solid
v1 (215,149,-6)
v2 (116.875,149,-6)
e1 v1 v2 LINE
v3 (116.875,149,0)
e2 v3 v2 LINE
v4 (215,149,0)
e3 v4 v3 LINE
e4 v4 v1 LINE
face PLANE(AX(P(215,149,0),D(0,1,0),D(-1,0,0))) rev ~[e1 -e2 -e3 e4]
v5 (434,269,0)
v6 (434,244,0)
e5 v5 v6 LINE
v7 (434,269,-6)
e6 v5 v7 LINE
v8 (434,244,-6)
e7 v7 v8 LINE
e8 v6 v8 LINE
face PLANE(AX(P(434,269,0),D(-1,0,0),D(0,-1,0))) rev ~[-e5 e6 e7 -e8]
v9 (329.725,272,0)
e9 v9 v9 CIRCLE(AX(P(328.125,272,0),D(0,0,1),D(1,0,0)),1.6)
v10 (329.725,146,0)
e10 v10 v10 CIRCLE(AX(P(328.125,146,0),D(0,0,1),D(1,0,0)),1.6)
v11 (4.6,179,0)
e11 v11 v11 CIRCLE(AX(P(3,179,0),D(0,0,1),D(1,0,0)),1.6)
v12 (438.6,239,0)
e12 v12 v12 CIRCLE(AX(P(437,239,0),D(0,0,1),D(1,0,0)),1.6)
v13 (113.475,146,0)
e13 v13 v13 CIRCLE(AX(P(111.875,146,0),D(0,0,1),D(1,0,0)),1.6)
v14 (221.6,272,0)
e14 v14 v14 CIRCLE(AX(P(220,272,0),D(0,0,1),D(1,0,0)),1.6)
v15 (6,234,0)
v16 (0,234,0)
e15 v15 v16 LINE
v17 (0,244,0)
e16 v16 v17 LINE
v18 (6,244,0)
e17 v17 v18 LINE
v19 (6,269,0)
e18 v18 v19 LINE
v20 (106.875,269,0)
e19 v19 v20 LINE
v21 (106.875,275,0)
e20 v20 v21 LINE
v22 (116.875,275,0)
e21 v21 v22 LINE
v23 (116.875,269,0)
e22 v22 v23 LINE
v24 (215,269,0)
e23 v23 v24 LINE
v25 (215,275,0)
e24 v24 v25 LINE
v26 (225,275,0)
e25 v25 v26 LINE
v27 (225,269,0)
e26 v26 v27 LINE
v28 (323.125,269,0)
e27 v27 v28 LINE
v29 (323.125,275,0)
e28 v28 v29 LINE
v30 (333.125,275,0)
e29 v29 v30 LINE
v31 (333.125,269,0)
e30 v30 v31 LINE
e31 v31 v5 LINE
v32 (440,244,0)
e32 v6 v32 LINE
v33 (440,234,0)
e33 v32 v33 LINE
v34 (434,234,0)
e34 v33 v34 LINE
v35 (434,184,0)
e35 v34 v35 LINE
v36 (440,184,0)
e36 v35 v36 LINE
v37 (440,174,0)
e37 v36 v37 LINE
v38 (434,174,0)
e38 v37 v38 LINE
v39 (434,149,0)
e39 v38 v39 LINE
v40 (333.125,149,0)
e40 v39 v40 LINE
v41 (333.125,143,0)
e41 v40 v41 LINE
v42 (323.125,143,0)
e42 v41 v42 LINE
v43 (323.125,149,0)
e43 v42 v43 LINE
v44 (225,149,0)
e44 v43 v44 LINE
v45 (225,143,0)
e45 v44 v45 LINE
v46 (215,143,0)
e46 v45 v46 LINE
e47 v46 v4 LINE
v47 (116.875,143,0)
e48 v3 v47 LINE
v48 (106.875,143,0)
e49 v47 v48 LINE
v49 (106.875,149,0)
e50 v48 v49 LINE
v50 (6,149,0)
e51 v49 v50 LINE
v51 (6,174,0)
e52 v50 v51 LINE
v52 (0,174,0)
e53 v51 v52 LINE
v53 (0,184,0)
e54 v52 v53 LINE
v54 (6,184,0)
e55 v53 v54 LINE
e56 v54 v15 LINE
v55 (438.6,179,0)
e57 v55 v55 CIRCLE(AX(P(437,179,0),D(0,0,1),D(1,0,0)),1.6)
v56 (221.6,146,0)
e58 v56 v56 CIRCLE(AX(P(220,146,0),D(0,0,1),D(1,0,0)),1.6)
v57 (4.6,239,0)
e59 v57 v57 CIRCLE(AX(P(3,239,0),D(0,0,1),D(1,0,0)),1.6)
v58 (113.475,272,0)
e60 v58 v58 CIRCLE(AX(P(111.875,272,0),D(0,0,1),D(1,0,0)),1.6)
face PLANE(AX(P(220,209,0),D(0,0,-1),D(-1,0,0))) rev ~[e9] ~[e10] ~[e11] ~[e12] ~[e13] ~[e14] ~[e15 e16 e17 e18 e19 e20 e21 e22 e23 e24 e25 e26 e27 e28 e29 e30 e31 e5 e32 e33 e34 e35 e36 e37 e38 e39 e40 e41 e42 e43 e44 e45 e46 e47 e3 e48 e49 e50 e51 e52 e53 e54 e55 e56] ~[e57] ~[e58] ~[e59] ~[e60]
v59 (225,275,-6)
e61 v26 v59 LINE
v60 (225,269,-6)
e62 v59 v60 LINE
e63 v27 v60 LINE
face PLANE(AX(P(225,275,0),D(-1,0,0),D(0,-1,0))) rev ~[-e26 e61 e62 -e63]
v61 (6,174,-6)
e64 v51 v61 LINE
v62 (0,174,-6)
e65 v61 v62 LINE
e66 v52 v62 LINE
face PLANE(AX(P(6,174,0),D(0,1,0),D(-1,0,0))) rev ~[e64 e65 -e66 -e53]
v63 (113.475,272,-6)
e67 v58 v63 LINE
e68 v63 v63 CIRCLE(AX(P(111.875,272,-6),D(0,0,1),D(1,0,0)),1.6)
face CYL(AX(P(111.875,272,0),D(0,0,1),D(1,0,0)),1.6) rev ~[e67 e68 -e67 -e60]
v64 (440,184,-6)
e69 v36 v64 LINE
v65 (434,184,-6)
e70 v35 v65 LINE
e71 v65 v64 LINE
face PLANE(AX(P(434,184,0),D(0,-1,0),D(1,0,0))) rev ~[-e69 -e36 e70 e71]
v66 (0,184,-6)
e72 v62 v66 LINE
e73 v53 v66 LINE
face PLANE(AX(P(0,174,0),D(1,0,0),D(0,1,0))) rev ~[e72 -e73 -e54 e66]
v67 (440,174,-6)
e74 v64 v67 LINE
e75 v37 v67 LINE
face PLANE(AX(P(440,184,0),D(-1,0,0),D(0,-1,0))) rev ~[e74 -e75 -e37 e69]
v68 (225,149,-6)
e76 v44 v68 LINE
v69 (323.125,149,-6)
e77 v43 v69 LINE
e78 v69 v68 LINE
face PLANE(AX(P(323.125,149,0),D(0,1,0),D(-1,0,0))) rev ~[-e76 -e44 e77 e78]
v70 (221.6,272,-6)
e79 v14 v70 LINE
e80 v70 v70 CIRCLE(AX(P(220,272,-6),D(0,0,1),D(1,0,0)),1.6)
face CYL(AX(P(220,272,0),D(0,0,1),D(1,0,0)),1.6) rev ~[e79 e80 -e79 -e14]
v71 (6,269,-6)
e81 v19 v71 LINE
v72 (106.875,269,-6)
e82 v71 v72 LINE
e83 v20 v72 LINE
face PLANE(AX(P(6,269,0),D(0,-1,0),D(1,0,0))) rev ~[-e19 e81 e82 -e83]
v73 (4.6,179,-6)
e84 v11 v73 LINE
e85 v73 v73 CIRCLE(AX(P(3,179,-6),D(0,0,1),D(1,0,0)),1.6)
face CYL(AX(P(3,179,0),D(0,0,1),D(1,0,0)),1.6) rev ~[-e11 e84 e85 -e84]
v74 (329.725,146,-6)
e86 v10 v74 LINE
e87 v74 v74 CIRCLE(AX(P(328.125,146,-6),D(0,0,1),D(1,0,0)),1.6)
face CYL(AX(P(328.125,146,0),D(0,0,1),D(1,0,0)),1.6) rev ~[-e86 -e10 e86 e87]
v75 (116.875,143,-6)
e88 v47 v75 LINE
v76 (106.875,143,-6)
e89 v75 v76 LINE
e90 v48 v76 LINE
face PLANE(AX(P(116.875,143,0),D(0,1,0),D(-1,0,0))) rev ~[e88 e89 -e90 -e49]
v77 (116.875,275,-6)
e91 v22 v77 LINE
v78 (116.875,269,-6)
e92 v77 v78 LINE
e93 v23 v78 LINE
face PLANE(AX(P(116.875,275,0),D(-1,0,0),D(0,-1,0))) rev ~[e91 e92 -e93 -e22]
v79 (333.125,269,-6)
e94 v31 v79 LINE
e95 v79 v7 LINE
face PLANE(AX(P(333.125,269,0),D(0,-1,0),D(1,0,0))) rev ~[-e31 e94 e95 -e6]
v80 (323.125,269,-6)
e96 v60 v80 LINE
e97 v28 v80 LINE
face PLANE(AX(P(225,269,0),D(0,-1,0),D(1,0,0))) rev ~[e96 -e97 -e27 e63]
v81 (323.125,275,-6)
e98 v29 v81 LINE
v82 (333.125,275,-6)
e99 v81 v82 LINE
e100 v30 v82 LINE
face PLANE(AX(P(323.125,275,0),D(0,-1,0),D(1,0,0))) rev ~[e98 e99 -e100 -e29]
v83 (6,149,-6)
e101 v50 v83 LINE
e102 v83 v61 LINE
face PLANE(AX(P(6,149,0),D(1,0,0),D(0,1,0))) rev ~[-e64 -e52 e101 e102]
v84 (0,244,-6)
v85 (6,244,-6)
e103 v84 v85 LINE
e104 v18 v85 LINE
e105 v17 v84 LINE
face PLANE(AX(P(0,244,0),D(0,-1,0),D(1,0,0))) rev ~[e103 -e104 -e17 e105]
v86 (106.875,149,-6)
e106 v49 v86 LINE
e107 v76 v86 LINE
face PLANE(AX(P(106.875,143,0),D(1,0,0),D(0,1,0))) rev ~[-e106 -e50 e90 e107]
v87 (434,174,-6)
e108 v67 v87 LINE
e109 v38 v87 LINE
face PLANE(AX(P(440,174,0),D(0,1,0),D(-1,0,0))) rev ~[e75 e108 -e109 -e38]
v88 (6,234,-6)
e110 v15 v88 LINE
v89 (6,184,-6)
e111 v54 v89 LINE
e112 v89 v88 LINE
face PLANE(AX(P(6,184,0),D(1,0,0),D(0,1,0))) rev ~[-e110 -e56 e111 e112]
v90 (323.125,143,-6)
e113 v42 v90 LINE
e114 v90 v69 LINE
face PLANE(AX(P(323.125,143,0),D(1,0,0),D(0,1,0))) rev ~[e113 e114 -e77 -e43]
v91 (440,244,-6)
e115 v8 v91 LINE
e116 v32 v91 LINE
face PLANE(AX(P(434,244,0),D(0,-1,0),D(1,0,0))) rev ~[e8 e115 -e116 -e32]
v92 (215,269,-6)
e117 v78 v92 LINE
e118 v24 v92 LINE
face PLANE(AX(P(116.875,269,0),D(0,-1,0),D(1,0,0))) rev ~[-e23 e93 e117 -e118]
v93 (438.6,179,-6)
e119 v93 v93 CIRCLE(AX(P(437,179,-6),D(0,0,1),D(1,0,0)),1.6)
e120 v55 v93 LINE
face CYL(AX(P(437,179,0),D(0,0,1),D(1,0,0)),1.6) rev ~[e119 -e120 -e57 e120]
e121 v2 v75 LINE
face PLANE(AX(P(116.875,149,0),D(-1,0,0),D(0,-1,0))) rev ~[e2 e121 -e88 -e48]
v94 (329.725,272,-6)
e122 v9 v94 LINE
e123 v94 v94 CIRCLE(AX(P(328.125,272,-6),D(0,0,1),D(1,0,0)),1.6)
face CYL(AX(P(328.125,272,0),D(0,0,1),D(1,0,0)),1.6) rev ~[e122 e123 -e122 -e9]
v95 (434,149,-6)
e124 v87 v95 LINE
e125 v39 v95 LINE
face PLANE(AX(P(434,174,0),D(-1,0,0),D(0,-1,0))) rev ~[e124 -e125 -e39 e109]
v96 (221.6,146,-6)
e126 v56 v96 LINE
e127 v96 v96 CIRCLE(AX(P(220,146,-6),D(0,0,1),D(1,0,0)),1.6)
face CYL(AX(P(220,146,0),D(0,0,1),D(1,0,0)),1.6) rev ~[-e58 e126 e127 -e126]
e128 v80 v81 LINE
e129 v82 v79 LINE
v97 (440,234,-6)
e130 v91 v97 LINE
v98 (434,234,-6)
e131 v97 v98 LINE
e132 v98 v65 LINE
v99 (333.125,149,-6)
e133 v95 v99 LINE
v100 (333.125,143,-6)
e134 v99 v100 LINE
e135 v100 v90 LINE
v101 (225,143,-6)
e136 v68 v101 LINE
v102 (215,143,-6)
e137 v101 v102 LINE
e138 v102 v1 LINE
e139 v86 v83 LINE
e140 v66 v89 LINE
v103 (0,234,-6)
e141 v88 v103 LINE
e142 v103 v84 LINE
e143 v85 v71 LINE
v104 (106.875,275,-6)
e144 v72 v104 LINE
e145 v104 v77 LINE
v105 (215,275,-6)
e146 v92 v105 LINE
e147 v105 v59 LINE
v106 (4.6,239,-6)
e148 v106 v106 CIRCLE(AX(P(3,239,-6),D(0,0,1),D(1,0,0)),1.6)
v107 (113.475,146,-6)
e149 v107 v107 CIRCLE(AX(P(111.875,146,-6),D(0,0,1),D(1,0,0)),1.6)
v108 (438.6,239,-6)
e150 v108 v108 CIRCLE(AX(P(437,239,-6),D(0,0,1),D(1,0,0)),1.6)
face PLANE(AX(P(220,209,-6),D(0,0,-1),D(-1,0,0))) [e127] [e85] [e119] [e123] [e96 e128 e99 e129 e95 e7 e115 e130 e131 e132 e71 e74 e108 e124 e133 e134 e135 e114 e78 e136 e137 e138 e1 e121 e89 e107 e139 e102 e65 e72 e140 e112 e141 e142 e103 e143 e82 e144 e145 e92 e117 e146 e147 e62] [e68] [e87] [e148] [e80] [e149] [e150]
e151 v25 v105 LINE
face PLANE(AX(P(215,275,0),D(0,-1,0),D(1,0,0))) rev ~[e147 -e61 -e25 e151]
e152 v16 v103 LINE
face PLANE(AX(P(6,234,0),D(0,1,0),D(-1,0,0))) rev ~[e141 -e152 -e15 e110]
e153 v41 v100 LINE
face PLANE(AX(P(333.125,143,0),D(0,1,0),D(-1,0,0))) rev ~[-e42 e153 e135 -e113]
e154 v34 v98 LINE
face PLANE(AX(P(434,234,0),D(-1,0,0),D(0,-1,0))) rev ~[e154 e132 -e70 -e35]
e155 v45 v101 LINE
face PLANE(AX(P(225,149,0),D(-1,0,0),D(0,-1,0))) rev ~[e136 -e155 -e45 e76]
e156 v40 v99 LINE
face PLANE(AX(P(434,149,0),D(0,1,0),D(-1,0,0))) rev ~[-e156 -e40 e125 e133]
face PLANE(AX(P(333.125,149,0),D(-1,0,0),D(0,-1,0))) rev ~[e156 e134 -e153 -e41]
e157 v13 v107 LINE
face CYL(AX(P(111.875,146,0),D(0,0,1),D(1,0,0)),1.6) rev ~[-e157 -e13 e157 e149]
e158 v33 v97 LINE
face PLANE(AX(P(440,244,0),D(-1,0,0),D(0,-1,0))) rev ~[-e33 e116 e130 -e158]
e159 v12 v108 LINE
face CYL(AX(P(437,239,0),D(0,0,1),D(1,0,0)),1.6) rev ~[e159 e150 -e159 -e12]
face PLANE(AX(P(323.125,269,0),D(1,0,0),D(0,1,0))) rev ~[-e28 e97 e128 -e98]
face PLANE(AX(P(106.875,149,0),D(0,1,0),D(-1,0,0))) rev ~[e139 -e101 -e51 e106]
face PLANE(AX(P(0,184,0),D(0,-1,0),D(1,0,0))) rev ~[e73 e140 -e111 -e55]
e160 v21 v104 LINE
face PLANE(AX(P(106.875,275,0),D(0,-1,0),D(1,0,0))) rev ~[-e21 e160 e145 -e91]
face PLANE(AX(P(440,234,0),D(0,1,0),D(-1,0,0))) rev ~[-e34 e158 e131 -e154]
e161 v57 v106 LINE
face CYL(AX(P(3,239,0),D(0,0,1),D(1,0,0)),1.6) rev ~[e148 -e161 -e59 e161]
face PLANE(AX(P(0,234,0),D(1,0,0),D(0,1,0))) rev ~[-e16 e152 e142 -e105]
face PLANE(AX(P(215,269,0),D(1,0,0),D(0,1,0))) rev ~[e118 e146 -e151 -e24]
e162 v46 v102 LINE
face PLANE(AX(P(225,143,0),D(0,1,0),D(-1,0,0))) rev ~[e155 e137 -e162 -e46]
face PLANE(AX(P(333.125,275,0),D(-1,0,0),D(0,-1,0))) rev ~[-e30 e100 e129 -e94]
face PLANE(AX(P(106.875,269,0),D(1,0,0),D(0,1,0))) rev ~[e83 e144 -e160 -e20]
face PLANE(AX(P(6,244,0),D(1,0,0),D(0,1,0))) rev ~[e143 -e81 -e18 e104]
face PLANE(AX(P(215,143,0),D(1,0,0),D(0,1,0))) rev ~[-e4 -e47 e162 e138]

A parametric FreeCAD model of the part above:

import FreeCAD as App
import Part
import Sketcher
Q = App.Units.Quantity

doc = App.newDocument("Part")
params = doc.addObject("Spreadsheet::Sheet", "Params")
for row, (alias, value) in enumerate([
    ("sketch1_diameter", "3.2 mm"),
    ("sketch1_width", "6 mm"),
    ("sketch1_width2", "10 mm"),
    ("sketch1_height", "25 mm"),
    ("sketch1_height2", "50 mm"),
    ("pad1_length", "6 mm"),
], start=1):
    params.set(f"A{row}", alias)
    params.set(f"B{row}", "=" + value)
    params.setAlias(f"B{row}", alias)

body = doc.addObject("PartDesign::Body", "Body")

sketch1 = body.newObject("Sketcher::SketchObject", "Sketch")
sketch1.AttachmentSupport = (doc.getObject("XY_Plane"), [""])
sketch1.MapMode = "FlatFace"
sketch1.addGeometry([
    Part.LineSegment(App.Vector(106.9, 269, 0), App.Vector(6, 269, 0)),
    Part.LineSegment(App.Vector(6, 269, 0), App.Vector(6, 244, 0)),
    Part.LineSegment(App.Vector(6, 244, 0), App.Vector(0, 244, 0)),
    Part.LineSegment(App.Vector(0, 244, 0), App.Vector(0, 234, 0)),
    Part.LineSegment(App.Vector(0, 234, 0), App.Vector(6, 234, 0)),
    Part.LineSegment(App.Vector(6, 234, 0), App.Vector(6, 184, 0)),
    Part.LineSegment(App.Vector(6, 184, 0), App.Vector(0, 184, 0)),
    Part.LineSegment(App.Vector(0, 184, 0), App.Vector(0, 174, 0)),
    Part.LineSegment(App.Vector(0, 174, 0), App.Vector(6, 174, 0)),
    Part.LineSegment(App.Vector(6, 174, 0), App.Vector(6, 149, 0)),
    Part.LineSegment(App.Vector(6, 149, 0), App.Vector(106.9, 149, 0)),
    Part.LineSegment(App.Vector(106.9, 149, 0), App.Vector(106.9, 143, 0)),
    Part.LineSegment(App.Vector(106.9, 143, 0), App.Vector(116.9, 143, 0)),
    Part.LineSegment(App.Vector(116.9, 143, 0), App.Vector(116.9, 149, 0)),
    Part.LineSegment(App.Vector(116.9, 149, 0), App.Vector(215, 149, 0)),
    Part.LineSegment(App.Vector(215, 149, 0), App.Vector(215, 143, 0)),
    Part.LineSegment(App.Vector(215, 143, 0), App.Vector(225, 143, 0)),
    Part.LineSegment(App.Vector(225, 143, 0), App.Vector(225, 149, 0)),
    Part.LineSegment(App.Vector(225, 149, 0), App.Vector(323.1, 149, 0)),
    Part.LineSegment(App.Vector(323.1, 149, 0), App.Vector(323.1, 143, 0)),
    Part.LineSegment(App.Vector(323.1, 143, 0), App.Vector(333.1, 143, 0)),
    Part.LineSegment(App.Vector(333.1, 143, 0), App.Vector(333.1, 149, 0)),
    Part.LineSegment(App.Vector(333.1, 149, 0), App.Vector(434, 149, 0)),
    Part.LineSegment(App.Vector(434, 149, 0), App.Vector(434, 174, 0)),
    Part.LineSegment(App.Vector(434, 174, 0), App.Vector(440, 174, 0)),
    Part.LineSegment(App.Vector(440, 174, 0), App.Vector(440, 184, 0)),
    Part.LineSegment(App.Vector(440, 184, 0), App.Vector(434, 184, 0)),
    Part.LineSegment(App.Vector(434, 184, 0), App.Vector(434, 234, 0)),
    Part.LineSegment(App.Vector(434, 234, 0), App.Vector(440, 234, 0)),
    Part.LineSegment(App.Vector(440, 234, 0), App.Vector(440, 244, 0)),
    Part.LineSegment(App.Vector(440, 244, 0), App.Vector(434, 244, 0)),
    Part.LineSegment(App.Vector(434, 244, 0), App.Vector(434, 269, 0)),
    Part.LineSegment(App.Vector(434, 269, 0), App.Vector(333.1, 269, 0)),
    Part.LineSegment(App.Vector(333.1, 269, 0), App.Vector(333.1, 275, 0)),
    Part.LineSegment(App.Vector(333.1, 275, 0), App.Vector(323.1, 275, 0)),
    Part.LineSegment(App.Vector(323.1, 275, 0), App.Vector(323.1, 269, 0)),
    Part.LineSegment(App.Vector(323.1, 269, 0), App.Vector(225, 269, 0)),
    Part.LineSegment(App.Vector(225, 269, 0), App.Vector(225, 275, 0)),
    Part.LineSegment(App.Vector(225, 275, 0), App.Vector(215, 275, 0)),
    Part.LineSegment(App.Vector(215, 275, 0), App.Vector(215, 269, 0)),
    Part.LineSegment(App.Vector(215, 269, 0), App.Vector(116.9, 269, 0)),
    Part.LineSegment(App.Vector(116.9, 269, 0), App.Vector(116.9, 275, 0)),
    Part.LineSegment(App.Vector(116.9, 275, 0), App.Vector(106.9, 275, 0)),
    Part.LineSegment(App.Vector(106.9, 275, 0), App.Vector(106.9, 269, 0)),
    Part.Circle(App.Vector(328.1, 146, 0), App.Vector(0, 0, 1), 1.6),
    Part.Circle(App.Vector(437, 179, 0), App.Vector(0, 0, 1), 1.6),
    Part.Circle(App.Vector(220, 146, 0), App.Vector(0, 0, 1), 1.6),
    Part.Circle(App.Vector(111.9, 146, 0), App.Vector(0, 0, 1), 1.6),
    Part.Circle(App.Vector(3, 179, 0), App.Vector(0, 0, 1), 1.6),
    Part.Circle(App.Vector(437, 239, 0), App.Vector(0, 0, 1), 1.6),
    Part.Circle(App.Vector(328.1, 272, 0), App.Vector(0, 0, 1), 1.6),
    Part.Circle(App.Vector(3, 239, 0), App.Vector(0, 0, 1), 1.6),
    Part.Circle(App.Vector(220, 272, 0), App.Vector(0, 0, 1), 1.6),
    Part.Circle(App.Vector(111.9, 272, 0), App.Vector(0, 0, 1), 1.6),
], False)
sketch1.addConstraint([
    Sketcher.Constraint("Coincident", 0, 2, 1, 1),
    Sketcher.Constraint("Coincident", 1, 2, 2, 1),
    Sketcher.Constraint("Coincident", 2, 2, 3, 1),
    Sketcher.Constraint("Coincident", 3, 2, 4, 1),
    Sketcher.Constraint("Coincident", 4, 2, 5, 1),
    Sketcher.Constraint("Coincident", 5, 2, 6, 1),
    Sketcher.Constraint("Coincident", 6, 2, 7, 1),
    Sketcher.Constraint("Coincident", 7, 2, 8, 1),
    Sketcher.Constraint("Coincident", 8, 2, 9, 1),
    Sketcher.Constraint("Coincident", 9, 2, 10, 1),
    Sketcher.Constraint("Coincident", 10, 2, 11, 1),
    Sketcher.Constraint("Coincident", 11, 2, 12, 1),
    Sketcher.Constraint("Coincident", 12, 2, 13, 1),
    Sketcher.Constraint("Coincident", 13, 2, 14, 1),
    Sketcher.Constraint("Coincident", 14, 2, 15, 1),
    Sketcher.Constraint("Coincident", 15, 2, 16, 1),
    Sketcher.Constraint("Coincident", 16, 2, 17, 1),
    Sketcher.Constraint("Coincident", 17, 2, 18, 1),
    Sketcher.Constraint("Coincident", 18, 2, 19, 1),
    Sketcher.Constraint("Coincident", 19, 2, 20, 1),
    Sketcher.Constraint("Coincident", 20, 2, 21, 1),
    Sketcher.Constraint("Coincident", 21, 2, 22, 1),
    Sketcher.Constraint("Coincident", 22, 2, 23, 1),
    Sketcher.Constraint("Coincident", 23, 2, 24, 1),
    Sketcher.Constraint("Coincident", 24, 2, 25, 1),
    Sketcher.Constraint("Coincident", 25, 2, 26, 1),
    Sketcher.Constraint("Coincident", 26, 2, 27, 1),
    Sketcher.Constraint("Coincident", 27, 2, 28, 1),
    Sketcher.Constraint("Coincident", 28, 2, 29, 1),
    Sketcher.Constraint("Coincident", 29, 2, 30, 1),
    Sketcher.Constraint("Coincident", 30, 2, 31, 1),
    Sketcher.Constraint("Coincident", 31, 2, 32, 1),
    Sketcher.Constraint("Coincident", 32, 2, 33, 1),
    Sketcher.Constraint("Coincident", 33, 2, 34, 1),
    Sketcher.Constraint("Coincident", 34, 2, 35, 1),
    Sketcher.Constraint("Coincident", 35, 2, 36, 1),
    Sketcher.Constraint("Coincident", 36, 2, 37, 1),
    Sketcher.Constraint("Coincident", 37, 2, 38, 1),
    Sketcher.Constraint("Coincident", 38, 2, 39, 1),
    Sketcher.Constraint("Coincident", 39, 2, 40, 1),
    Sketcher.Constraint("Coincident", 40, 2, 41, 1),
    Sketcher.Constraint("Coincident", 41, 2, 42, 1),
    Sketcher.Constraint("Coincident", 42, 2, 43, 1),
    Sketcher.Constraint("Coincident", 43, 2, 0, 1),
    Sketcher.Constraint("Horizontal", 0),
    Sketcher.Constraint("Vertical", 1),
    Sketcher.Constraint("Horizontal", 2),
    Sketcher.Constraint("Vertical", 3),
    Sketcher.Constraint("Horizontal", 4),
    Sketcher.Constraint("Vertical", 5),
    Sketcher.Constraint("Horizontal", 6),
    Sketcher.Constraint("Vertical", 7),
    Sketcher.Constraint("Horizontal", 8),
    Sketcher.Constraint("Vertical", 9),
    Sketcher.Constraint("Horizontal", 10),
    Sketcher.Constraint("Vertical", 11),
    Sketcher.Constraint("Horizontal", 12),
    Sketcher.Constraint("Vertical", 13),
    Sketcher.Constraint("Horizontal", 14),
    Sketcher.Constraint("Vertical", 15),
    Sketcher.Constraint("Horizontal", 16),
    Sketcher.Constraint("Vertical", 17),
    Sketcher.Constraint("Horizontal", 18),
    Sketcher.Constraint("Vertical", 19),
    Sketcher.Constraint("Horizontal", 20),
    Sketcher.Constraint("Vertical", 21),
    Sketcher.Constraint("Horizontal", 22),
    Sketcher.Constraint("Vertical", 23),
    Sketcher.Constraint("Horizontal", 24),
    Sketcher.Constraint("Vertical", 25),
    Sketcher.Constraint("Horizontal", 26),
    Sketcher.Constraint("Vertical", 27),
    Sketcher.Constraint("Horizontal", 28),
    Sketcher.Constraint("Vertical", 29),
    Sketcher.Constraint("Horizontal", 30),
    Sketcher.Constraint("Vertical", 31),
    Sketcher.Constraint("Horizontal", 32),
    Sketcher.Constraint("Vertical", 33),
    Sketcher.Constraint("Horizontal", 34),
    Sketcher.Constraint("Vertical", 35),
    Sketcher.Constraint("Horizontal", 36),
    Sketcher.Constraint("Vertical", 37),
    Sketcher.Constraint("Horizontal", 38),
    Sketcher.Constraint("Vertical", 39),
    Sketcher.Constraint("Horizontal", 40),
    Sketcher.Constraint("Vertical", 41),
    Sketcher.Constraint("Horizontal", 42),
    Sketcher.Constraint("Vertical", 43),
    Sketcher.Constraint("Equal", 44, 45),
    Sketcher.Constraint("Equal", 45, 46),
    Sketcher.Constraint("Equal", 46, 47),
    Sketcher.Constraint("Equal", 47, 48),
    Sketcher.Constraint("Equal", 48, 49),
    Sketcher.Constraint("Equal", 49, 50),
    Sketcher.Constraint("Equal", 50, 51),
    Sketcher.Constraint("Equal", 51, 52),
    Sketcher.Constraint("Equal", 52, 53),
    Sketcher.Constraint("PointOnObject", 2, 2, -2),
    Sketcher.Constraint("PointOnObject", 6, 2, -2),
    Sketcher.Constraint("Horizontal", 44, 3, 46, 3),
    Sketcher.Constraint("Horizontal", 46, 3, 47, 3),
    Sketcher.Constraint("Horizontal", 45, 3, 48, 3),
    Sketcher.Constraint("Horizontal", 49, 3, 51, 3),
    Sketcher.Constraint("Horizontal", 50, 3, 52, 3),
    Sketcher.Constraint("Horizontal", 52, 3, 53, 3),
    Sketcher.Constraint("Horizontal", 10, 2, 13, 2),
    Sketcher.Constraint("Horizontal", 12, 2, 15, 2),
    Sketcher.Constraint("Horizontal", 14, 2, 17, 2),
    Sketcher.Constraint("Horizontal", 16, 2, 19, 2),
    Sketcher.Constraint("Horizontal", 18, 2, 21, 2),
    Sketcher.Constraint("Horizontal", 8, 2, 23, 2),
    Sketcher.Constraint("Horizontal", 6, 2, 25, 2),
    Sketcher.Constraint("Horizontal", 4, 2, 27, 2),
    Sketcher.Constraint("Horizontal", 2, 2, 29, 2),
    Sketcher.Constraint("Horizontal", 0, 2, 31, 2),
    Sketcher.Constraint("Horizontal", 32, 2, 35, 2),
    Sketcher.Constraint("Horizontal", 34, 2, 37, 2),
    Sketcher.Constraint("Horizontal", 36, 2, 39, 2),
    Sketcher.Constraint("Horizontal", 38, 2, 41, 2),
    Sketcher.Constraint("Vertical", 45, 3, 49, 3),
    Sketcher.Constraint("Vertical", 44, 3, 50, 3),
    Sketcher.Constraint("Vertical", 48, 3, 51, 3),
    Sketcher.Constraint("Vertical", 46, 3, 52, 3),
    Sketcher.Constraint("Vertical", 47, 3, 53, 3),
    Sketcher.Constraint("Vertical", 1, 2, 4, 2),
    Sketcher.Constraint("Vertical", 5, 2, 8, 2),
    Sketcher.Constraint("Vertical", 23, 2, 26, 2),
    Sketcher.Constraint("Vertical", 25, 2, 28, 2),
    Sketcher.Constraint("Vertical", 27, 2, 30, 2),
    Sketcher.Constraint("Vertical", 21, 2, 32, 2),
    Sketcher.Constraint("Vertical", 19, 2, 34, 2),
    Sketcher.Constraint("Vertical", 17, 2, 36, 2),
    Sketcher.Constraint("Vertical", 15, 2, 38, 2),
    Sketcher.Constraint("Vertical", 13, 2, 40, 2),
    Sketcher.Constraint("Vertical", 11, 2, 42, 2),
    Sketcher.Constraint("Equal", 12, 16),
    Sketcher.Constraint("Equal", 14, 18),
    Sketcher.Constraint("Equal", 16, 20),
    Sketcher.Constraint("Equal", 10, 22),
    Sketcher.Constraint("Equal", 8, 24),
    Sketcher.Constraint("Equal", 42, 3),
    Sketcher.Constraint("Equal", 3, 7),
    Sketcher.Constraint("Equal", 1, 9),
    Sketcher.Constraint("Equal", 30, 11),
    Sketcher.Constraint("Equal", 21, 33),
    Sketcher.Constraint("Diameter", 44, Q("3.2 mm")),
    Sketcher.Constraint("DistanceX", 2, 2, 2, 1, Q("6 mm")),
    Sketcher.Constraint("DistanceX", 12, 1, 12, 2, Q("10 mm")),
    Sketcher.Constraint("DistanceY", 1, 2, 1, 1, Q("25 mm")),
    Sketcher.Constraint("DistanceY", 5, 2, 5, 1, Q("50 mm")),
    Sketcher.Constraint("DistanceY", -1, 1, 44, 3, Q("146 mm")),
    Sketcher.Constraint("DistanceX", -1, 1, 45, 3, Q("437 mm")),
    Sketcher.Constraint("DistanceY", -1, 1, 45, 3, Q("179 mm")),
    Sketcher.Constraint("DistanceX", -1, 1, 46, 3, Q("220 mm")),
    Sketcher.Constraint("DistanceX", -1, 1, 48, 3, Q("3 mm")),
    Sketcher.Constraint("DistanceY", -1, 1, 49, 3, Q("239 mm")),
    Sketcher.Constraint("DistanceY", -1, 1, 50, 3, Q("272 mm")),
    Sketcher.Constraint("DistanceY", -1, 1, 0, 2, Q("269 mm")),
    Sketcher.Constraint("DistanceX", -1, 1, 14, 2, Q("215 mm")),
    Sketcher.Constraint("DistanceX", 10, 2, 47, 3, Q("5 mm")),
    Sketcher.Constraint("DistanceX", 18, 2, 44, 3, Q("5 mm")),
    Sketcher.Constraint("DistanceX", 0, 2, 0, 1, Q("100.875 mm")),
])
sketch1.setExpression("Constraints[145]", "Params.sketch1_diameter")
sketch1.setExpression("Constraints[146]", "Params.sketch1_width")
sketch1.setExpression("Constraints[147]", "Params.sketch1_width2")
sketch1.setExpression("Constraints[148]", "Params.sketch1_height")
sketch1.setExpression("Constraints[149]", "Params.sketch1_height2")
pad1 = body.newObject("PartDesign::Pad", "Pad")
pad1.Profile = sketch1
pad1.setExpression("Length", "Params.pad1_length")
pad1.Reversed = True

doc.recompute()
